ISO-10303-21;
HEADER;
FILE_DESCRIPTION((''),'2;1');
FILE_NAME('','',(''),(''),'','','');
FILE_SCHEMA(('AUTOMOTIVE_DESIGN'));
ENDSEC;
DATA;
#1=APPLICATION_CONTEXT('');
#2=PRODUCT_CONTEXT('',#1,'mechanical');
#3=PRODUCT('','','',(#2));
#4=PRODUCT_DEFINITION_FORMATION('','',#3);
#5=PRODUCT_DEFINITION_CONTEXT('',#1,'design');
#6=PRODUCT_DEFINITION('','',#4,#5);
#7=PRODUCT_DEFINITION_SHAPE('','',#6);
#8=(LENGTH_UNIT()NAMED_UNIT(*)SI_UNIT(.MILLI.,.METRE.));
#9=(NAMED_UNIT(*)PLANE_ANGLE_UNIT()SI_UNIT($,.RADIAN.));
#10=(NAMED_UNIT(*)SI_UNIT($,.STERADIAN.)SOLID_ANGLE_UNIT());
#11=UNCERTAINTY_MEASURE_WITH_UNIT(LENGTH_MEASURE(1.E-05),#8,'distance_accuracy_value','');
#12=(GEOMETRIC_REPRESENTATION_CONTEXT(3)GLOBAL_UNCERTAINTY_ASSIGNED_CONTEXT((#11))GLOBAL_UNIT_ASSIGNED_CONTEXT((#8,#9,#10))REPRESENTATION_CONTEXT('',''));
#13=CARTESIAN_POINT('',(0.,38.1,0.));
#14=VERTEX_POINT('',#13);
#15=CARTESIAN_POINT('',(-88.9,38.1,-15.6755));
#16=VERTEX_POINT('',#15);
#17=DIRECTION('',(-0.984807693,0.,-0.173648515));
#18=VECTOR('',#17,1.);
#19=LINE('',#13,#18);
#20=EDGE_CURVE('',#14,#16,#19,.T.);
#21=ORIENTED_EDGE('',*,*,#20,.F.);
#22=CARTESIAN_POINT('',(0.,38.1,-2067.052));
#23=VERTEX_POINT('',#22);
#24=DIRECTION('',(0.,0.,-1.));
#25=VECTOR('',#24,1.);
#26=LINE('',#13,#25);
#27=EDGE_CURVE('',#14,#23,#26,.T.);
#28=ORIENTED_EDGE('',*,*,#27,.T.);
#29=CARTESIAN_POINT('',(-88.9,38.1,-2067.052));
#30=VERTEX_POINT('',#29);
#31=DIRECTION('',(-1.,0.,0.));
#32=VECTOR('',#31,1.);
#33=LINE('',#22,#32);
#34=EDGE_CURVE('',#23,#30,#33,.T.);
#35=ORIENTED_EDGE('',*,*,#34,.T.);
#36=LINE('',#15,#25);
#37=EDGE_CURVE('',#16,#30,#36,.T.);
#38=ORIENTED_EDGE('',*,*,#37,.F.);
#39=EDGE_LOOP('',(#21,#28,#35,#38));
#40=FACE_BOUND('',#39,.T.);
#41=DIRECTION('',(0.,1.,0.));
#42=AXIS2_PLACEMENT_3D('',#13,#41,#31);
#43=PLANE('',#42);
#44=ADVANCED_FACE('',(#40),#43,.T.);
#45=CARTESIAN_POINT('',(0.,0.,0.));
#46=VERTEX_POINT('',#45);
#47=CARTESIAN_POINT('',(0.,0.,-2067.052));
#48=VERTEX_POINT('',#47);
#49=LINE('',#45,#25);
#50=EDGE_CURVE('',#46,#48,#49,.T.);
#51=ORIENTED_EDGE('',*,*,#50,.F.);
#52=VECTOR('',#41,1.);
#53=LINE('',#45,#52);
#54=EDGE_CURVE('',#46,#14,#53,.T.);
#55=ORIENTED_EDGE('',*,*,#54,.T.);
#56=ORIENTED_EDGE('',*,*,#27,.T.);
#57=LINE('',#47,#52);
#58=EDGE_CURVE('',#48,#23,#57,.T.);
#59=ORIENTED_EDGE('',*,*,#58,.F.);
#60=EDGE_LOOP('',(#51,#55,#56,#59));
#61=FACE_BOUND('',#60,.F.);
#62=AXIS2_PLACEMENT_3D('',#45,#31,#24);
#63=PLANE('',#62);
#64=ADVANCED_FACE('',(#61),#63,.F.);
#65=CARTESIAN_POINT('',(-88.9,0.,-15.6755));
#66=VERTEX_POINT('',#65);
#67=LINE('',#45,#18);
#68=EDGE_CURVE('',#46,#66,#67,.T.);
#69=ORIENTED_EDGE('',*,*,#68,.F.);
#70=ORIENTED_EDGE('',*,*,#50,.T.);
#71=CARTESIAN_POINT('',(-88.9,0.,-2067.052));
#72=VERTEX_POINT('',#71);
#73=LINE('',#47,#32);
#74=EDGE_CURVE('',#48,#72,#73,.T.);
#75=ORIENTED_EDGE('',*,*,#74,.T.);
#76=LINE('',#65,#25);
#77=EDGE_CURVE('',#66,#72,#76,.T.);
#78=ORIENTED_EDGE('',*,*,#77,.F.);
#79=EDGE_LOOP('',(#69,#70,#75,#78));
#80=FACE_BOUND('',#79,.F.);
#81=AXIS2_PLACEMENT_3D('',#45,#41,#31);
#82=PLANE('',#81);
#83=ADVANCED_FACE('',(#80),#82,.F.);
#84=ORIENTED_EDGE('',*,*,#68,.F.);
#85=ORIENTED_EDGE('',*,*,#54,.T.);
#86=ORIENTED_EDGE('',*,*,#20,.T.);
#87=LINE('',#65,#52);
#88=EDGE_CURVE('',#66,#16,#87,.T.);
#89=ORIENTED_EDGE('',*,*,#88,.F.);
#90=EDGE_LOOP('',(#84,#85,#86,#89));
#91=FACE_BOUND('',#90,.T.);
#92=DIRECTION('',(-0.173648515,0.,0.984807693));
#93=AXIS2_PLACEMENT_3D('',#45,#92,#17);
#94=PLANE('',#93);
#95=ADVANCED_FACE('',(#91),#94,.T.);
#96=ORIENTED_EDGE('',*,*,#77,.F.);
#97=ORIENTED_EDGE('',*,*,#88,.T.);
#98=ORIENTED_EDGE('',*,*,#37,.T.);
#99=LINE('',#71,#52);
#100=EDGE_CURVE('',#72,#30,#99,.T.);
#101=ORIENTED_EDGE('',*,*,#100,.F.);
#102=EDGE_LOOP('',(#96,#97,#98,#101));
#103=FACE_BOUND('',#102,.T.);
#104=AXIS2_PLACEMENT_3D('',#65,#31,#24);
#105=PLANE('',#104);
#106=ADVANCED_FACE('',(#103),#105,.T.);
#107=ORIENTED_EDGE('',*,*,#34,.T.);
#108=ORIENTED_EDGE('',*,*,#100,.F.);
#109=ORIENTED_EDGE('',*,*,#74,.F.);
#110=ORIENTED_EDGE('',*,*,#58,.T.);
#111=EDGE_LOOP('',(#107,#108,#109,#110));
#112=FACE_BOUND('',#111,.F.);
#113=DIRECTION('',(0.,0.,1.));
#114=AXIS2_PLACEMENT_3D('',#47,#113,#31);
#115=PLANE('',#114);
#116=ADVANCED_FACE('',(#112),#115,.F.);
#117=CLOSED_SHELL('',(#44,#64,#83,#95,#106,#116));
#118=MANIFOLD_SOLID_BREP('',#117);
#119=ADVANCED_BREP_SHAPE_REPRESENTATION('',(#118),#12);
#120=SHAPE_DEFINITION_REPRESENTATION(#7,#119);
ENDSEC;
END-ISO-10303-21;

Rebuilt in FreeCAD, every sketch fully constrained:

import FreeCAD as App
import Part
import Sketcher
Q = App.Units.Quantity

doc = App.newDocument("Part")
body = doc.addObject("PartDesign::Body", "Body")

# Sketch on XZ plane
sketch1 = body.newObject("Sketcher::SketchObject", "Sketch")
sketch1.AttachmentSupport = (doc.getObject("XZ_Plane"), [""])
sketch1.MapMode = "FlatFace"
sketch1.addGeometry(Part.LineSegment(App.Vector(-88.9, -15.6755, 0), App.Vector(0, 0, 0)), False)
sketch1.addGeometry(Part.LineSegment(App.Vector(0, 0, 0), App.Vector(0, -2067.052, 0)), False)
sketch1.addGeometry(Part.LineSegment(App.Vector(0, -2067.052, 0), App.Vector(-88.9, -2067.052, 0)), False)
sketch1.addGeometry(Part.LineSegment(App.Vector(-88.9, -2067.052, 0), App.Vector(-88.9, -15.6755, 0)), False)
sketch1.addConstraint(Sketcher.Constraint("Coincident", 0, 2, 1, 1))
sketch1.addConstraint(Sketcher.Constraint("Coincident", 1, 2, 2, 1))
sketch1.addConstraint(Sketcher.Constraint("Coincident", 2, 2, 3, 1))
sketch1.addConstraint(Sketcher.Constraint("Coincident", 3, 2, 0, 1))
sketch1.addConstraint(Sketcher.Constraint("Vertical", 1))
sketch1.addConstraint(Sketcher.Constraint("Horizontal", 2))
sketch1.addConstraint(Sketcher.Constraint("Vertical", 3))
sketch1.addConstraint(Sketcher.Constraint("Coincident", 0, 2, -1, 1))
sketch1.addConstraint(Sketcher.Constraint("DistanceX", 2, 2, 2, 1, Q("3.5 in")))
sketch1.addConstraint(Sketcher.Constraint("Angle", 0, Q("10 deg")))
sketch1.addConstraint(Sketcher.Constraint("DistanceY", 1, 2, 1, 1, Q("81.38 in")))
pad1 = body.newObject("PartDesign::Pad", "Pad")
pad1.Profile = sketch1
pad1.Length = Q("1.5 in")
pad1.Reversed = True

doc.recompute()
